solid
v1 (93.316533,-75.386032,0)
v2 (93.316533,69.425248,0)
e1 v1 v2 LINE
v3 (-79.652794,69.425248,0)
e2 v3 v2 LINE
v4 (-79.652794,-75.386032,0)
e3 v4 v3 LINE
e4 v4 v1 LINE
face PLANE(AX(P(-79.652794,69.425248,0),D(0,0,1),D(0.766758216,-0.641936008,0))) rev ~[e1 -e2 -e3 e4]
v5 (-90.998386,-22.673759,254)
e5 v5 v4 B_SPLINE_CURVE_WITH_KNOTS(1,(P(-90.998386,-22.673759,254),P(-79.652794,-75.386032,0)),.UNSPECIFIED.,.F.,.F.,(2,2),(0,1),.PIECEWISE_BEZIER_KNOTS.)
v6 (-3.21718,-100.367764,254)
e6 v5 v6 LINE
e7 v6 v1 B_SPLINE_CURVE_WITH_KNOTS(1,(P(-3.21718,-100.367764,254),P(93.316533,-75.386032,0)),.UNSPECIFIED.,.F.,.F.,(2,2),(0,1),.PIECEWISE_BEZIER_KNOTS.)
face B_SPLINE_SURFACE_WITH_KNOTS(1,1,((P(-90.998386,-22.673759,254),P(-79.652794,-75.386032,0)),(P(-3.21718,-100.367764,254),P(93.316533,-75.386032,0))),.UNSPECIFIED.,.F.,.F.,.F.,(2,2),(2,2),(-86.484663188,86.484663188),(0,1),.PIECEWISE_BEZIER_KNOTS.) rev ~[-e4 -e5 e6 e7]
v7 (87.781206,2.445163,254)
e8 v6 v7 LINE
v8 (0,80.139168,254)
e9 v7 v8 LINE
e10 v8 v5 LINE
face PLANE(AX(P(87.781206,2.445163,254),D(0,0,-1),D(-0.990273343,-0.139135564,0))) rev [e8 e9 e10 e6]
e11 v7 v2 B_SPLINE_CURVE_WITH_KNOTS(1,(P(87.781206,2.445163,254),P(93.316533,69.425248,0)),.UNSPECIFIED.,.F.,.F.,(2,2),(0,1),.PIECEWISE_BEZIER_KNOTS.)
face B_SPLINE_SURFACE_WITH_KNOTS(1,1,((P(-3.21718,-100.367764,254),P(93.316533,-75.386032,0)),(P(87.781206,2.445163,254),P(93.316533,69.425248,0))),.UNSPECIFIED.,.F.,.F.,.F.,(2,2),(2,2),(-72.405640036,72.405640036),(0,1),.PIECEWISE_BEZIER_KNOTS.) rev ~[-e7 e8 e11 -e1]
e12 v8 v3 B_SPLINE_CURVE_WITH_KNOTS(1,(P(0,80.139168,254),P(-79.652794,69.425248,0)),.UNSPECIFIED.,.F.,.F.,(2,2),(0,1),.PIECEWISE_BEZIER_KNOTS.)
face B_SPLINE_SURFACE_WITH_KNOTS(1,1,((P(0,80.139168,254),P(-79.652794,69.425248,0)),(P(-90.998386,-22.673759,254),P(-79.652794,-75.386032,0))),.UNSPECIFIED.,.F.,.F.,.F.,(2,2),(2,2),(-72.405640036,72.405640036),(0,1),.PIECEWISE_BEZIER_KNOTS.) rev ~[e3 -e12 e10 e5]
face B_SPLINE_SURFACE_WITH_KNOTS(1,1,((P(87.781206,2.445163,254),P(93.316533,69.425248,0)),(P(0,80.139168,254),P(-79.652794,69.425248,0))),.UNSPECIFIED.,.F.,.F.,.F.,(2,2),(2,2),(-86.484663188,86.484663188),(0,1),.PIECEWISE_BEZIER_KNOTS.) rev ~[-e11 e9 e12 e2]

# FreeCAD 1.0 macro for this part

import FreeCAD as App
import Part
import Sketcher
Q = App.Units.Quantity


def add_polygon(sketch, points):
    """Adds a closed chain of lines whose ends are joined by coincident constraints."""
    first, n = sketch.GeometryCount, len(points)
    for a, b in zip(points, points[1:] + points[:1]):
        sketch.addGeometry(Part.LineSegment(App.Vector(*a, 0), App.Vector(*b, 0)), False)
    for i in range(n):
        sketch.addConstraint(Sketcher.Constraint("Coincident", first + i, 2, first + (i + 1) % n, 1))

doc = App.newDocument("Part")
body = doc.addObject("PartDesign::Body", "Body")

sketch1 = doc.addObject("Sketcher::SketchObject", "Sketch")
body.addObject(sketch1)
sketch1.AttachmentSupport = (doc.XY_Plane, [""])
sketch1.MapMode = "FlatFace"
sketch1.AttachmentOffset = App.Placement(App.Vector(0, 0, 254), App.Rotation())
add_polygon(sketch1, [(87.781206, 2.445163), (0, 80.139168), (-90.998386, -22.673759), (-3.21718, -100.367764)])
sketch1.addConstraint(Sketcher.Constraint("PointOnObject", 0, 2, -2))
sketch1.addConstraint(Sketcher.Constraint("Perpendicular", 0, 1))
sketch1.addConstraint(Sketcher.Constraint("Perpendicular", 1, 2))
sketch1.addConstraint(Sketcher.Constraint("Perpendicular", 2, 3))
sketch1.addConstraint(Sketcher.Constraint("DistanceY", 1, 2, -1, 1, Q("22.673759 mm")))
sketch1.addConstraint(Sketcher.Constraint("DistanceX", 2, 2, -1, 1, Q("3.21718 mm")))
sketch1.addConstraint(Sketcher.Constraint("DistanceY", 2, 2, 0, 2, Q("180.506932 mm")))
sketch1.addConstraint(Sketcher.Constraint("DistanceX", 1, 2, 3, 2, Q("178.779592 mm")))

sketch2 = doc.addObject("Sketcher::SketchObject", "Sketch001")
body.addObject(sketch2)
sketch2.AttachmentSupport = (doc.XY_Plane, [""])
sketch2.MapMode = "FlatFace"
add_polygon(sketch2, [(-79.652794, 69.425248), (-79.652794, -75.386032), (93.316533, -75.386032), (93.316533, 69.425248)])
sketch2.addConstraint(Sketcher.Constraint("Vertical", 0))
sketch2.addConstraint(Sketcher.Constraint("Horizontal", 1))
sketch2.addConstraint(Sketcher.Constraint("Vertical", 2))
sketch2.addConstraint(Sketcher.Constraint("Horizontal", 3))
sketch2.addConstraint(Sketcher.Constraint("DistanceY", 0, 2, 0, 1, Q("144.81128 mm")))
sketch2.addConstraint(Sketcher.Constraint("DistanceX", 1, 1, 1, 2, Q("172.969326 mm")))
sketch2.addConstraint(Sketcher.Constraint("DistanceX", 0, 2, -1, 1, Q("79.652794 mm")))
sketch2.addConstraint(Sketcher.Constraint("DistanceY", 0, 2, -1, 1, Q("75.386032 mm")))

additiveloft = doc.addObject("PartDesign::AdditiveLoft", "AdditiveLoft")
body.addObject(additiveloft)
additiveloft.Profile = sketch1
additiveloft.Sections = [sketch2]

doc.recompute()
